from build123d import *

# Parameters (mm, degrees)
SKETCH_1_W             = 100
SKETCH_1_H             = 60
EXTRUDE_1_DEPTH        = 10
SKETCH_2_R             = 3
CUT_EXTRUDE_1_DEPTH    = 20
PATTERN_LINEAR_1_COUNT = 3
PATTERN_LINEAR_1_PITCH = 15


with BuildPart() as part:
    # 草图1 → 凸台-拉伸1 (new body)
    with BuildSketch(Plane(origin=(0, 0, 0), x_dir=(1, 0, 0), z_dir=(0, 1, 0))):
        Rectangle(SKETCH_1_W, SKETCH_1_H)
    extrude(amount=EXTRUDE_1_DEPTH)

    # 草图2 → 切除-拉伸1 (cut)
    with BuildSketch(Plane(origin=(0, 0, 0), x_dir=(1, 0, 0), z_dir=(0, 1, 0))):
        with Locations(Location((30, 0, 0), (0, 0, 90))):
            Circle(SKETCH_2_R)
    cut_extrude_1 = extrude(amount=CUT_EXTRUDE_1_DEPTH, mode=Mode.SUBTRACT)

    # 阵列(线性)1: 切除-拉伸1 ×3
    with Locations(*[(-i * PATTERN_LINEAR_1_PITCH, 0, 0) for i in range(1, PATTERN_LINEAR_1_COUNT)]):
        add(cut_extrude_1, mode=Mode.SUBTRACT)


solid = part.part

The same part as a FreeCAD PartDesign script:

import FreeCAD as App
import Part
import Sketcher


def add_polygon(sketch, points):
    """Adds a closed chain of lines whose ends are joined by coincident constraints."""
    first, n = sketch.GeometryCount, len(points)
    for a, b in zip(points, points[1:] + points[:1]):
        sketch.addGeometry(Part.LineSegment(App.Vector(*a, 0), App.Vector(*b, 0)), False)
    for i in range(n):
        sketch.addConstraint(Sketcher.Constraint("Coincident", first + i, 2, first + (i + 1) % n, 1))

doc = App.newDocument("Part")
body = doc.addObject("PartDesign::Body", "Body")

# Sketch on XZ plane
sketch1 = body.newObject("Sketcher::SketchObject", "Sketch")
sketch1.AttachmentSupport = (doc.getObject("XZ_Plane"), [""])
sketch1.MapMode = "FlatFace"
add_polygon(sketch1, [(-50, -30), (-50, 30), (50, 30), (50, -30)])  # lines 0-3
sketch1.addConstraint(Sketcher.Constraint("Vertical", 0))
sketch1.addConstraint(Sketcher.Constraint("Horizontal", 1))
sketch1.addConstraint(Sketcher.Constraint("Vertical", 2))
sketch1.addConstraint(Sketcher.Constraint("Horizontal", 3))
sketch1.addConstraint(Sketcher.Constraint("Symmetric", 0, 2, 2, 2, -1, 1))
sketch1.addConstraint(Sketcher.Constraint("DistanceX", 1, 1, 1, 2, 100.0))
sketch1.addConstraint(Sketcher.Constraint("DistanceY", 0, 1, 0, 2, 60.0))
pad1 = body.newObject("PartDesign::Pad", "Pad")
pad1.Profile = sketch1
pad1.Length = 10
pad1.Reversed = True

# Sketch on XZ plane
sketch2 = body.newObject("Sketcher::SketchObject", "Sketch001")
sketch2.AttachmentSupport = (doc.getObject("XZ_Plane"), [""])
sketch2.MapMode = "FlatFace"
sketch2.addGeometry(Part.Circle(App.Vector(30, 0, 0), App.Vector(0, 0, 1), 3), False)
sketch2.addConstraint(Sketcher.Constraint("PointOnObject", 0, 3, -1))
sketch2.addConstraint(Sketcher.Constraint("Diameter", 0, 6.0))
sketch2.addConstraint(Sketcher.Constraint("DistanceX", -1, 1, 0, 3, 30.0))
pocket1 = body.newObject("PartDesign::Pocket", "Pocket")
pocket1.Profile = sketch2
pocket1.Length = 20
doc.recompute()

linearpattern = body.newObject("PartDesign::LinearPattern", "LinearPattern")
linearpattern.Originals = [pocket1]
linearpattern.Direction = (doc.getObject("X_Axis"), [""])
linearpattern.Mode = "offset"
linearpattern.Offset = 15
linearpattern.Occurrences = 3
linearpattern.Reversed = True
body.Tip = linearpattern

doc.recompute()
